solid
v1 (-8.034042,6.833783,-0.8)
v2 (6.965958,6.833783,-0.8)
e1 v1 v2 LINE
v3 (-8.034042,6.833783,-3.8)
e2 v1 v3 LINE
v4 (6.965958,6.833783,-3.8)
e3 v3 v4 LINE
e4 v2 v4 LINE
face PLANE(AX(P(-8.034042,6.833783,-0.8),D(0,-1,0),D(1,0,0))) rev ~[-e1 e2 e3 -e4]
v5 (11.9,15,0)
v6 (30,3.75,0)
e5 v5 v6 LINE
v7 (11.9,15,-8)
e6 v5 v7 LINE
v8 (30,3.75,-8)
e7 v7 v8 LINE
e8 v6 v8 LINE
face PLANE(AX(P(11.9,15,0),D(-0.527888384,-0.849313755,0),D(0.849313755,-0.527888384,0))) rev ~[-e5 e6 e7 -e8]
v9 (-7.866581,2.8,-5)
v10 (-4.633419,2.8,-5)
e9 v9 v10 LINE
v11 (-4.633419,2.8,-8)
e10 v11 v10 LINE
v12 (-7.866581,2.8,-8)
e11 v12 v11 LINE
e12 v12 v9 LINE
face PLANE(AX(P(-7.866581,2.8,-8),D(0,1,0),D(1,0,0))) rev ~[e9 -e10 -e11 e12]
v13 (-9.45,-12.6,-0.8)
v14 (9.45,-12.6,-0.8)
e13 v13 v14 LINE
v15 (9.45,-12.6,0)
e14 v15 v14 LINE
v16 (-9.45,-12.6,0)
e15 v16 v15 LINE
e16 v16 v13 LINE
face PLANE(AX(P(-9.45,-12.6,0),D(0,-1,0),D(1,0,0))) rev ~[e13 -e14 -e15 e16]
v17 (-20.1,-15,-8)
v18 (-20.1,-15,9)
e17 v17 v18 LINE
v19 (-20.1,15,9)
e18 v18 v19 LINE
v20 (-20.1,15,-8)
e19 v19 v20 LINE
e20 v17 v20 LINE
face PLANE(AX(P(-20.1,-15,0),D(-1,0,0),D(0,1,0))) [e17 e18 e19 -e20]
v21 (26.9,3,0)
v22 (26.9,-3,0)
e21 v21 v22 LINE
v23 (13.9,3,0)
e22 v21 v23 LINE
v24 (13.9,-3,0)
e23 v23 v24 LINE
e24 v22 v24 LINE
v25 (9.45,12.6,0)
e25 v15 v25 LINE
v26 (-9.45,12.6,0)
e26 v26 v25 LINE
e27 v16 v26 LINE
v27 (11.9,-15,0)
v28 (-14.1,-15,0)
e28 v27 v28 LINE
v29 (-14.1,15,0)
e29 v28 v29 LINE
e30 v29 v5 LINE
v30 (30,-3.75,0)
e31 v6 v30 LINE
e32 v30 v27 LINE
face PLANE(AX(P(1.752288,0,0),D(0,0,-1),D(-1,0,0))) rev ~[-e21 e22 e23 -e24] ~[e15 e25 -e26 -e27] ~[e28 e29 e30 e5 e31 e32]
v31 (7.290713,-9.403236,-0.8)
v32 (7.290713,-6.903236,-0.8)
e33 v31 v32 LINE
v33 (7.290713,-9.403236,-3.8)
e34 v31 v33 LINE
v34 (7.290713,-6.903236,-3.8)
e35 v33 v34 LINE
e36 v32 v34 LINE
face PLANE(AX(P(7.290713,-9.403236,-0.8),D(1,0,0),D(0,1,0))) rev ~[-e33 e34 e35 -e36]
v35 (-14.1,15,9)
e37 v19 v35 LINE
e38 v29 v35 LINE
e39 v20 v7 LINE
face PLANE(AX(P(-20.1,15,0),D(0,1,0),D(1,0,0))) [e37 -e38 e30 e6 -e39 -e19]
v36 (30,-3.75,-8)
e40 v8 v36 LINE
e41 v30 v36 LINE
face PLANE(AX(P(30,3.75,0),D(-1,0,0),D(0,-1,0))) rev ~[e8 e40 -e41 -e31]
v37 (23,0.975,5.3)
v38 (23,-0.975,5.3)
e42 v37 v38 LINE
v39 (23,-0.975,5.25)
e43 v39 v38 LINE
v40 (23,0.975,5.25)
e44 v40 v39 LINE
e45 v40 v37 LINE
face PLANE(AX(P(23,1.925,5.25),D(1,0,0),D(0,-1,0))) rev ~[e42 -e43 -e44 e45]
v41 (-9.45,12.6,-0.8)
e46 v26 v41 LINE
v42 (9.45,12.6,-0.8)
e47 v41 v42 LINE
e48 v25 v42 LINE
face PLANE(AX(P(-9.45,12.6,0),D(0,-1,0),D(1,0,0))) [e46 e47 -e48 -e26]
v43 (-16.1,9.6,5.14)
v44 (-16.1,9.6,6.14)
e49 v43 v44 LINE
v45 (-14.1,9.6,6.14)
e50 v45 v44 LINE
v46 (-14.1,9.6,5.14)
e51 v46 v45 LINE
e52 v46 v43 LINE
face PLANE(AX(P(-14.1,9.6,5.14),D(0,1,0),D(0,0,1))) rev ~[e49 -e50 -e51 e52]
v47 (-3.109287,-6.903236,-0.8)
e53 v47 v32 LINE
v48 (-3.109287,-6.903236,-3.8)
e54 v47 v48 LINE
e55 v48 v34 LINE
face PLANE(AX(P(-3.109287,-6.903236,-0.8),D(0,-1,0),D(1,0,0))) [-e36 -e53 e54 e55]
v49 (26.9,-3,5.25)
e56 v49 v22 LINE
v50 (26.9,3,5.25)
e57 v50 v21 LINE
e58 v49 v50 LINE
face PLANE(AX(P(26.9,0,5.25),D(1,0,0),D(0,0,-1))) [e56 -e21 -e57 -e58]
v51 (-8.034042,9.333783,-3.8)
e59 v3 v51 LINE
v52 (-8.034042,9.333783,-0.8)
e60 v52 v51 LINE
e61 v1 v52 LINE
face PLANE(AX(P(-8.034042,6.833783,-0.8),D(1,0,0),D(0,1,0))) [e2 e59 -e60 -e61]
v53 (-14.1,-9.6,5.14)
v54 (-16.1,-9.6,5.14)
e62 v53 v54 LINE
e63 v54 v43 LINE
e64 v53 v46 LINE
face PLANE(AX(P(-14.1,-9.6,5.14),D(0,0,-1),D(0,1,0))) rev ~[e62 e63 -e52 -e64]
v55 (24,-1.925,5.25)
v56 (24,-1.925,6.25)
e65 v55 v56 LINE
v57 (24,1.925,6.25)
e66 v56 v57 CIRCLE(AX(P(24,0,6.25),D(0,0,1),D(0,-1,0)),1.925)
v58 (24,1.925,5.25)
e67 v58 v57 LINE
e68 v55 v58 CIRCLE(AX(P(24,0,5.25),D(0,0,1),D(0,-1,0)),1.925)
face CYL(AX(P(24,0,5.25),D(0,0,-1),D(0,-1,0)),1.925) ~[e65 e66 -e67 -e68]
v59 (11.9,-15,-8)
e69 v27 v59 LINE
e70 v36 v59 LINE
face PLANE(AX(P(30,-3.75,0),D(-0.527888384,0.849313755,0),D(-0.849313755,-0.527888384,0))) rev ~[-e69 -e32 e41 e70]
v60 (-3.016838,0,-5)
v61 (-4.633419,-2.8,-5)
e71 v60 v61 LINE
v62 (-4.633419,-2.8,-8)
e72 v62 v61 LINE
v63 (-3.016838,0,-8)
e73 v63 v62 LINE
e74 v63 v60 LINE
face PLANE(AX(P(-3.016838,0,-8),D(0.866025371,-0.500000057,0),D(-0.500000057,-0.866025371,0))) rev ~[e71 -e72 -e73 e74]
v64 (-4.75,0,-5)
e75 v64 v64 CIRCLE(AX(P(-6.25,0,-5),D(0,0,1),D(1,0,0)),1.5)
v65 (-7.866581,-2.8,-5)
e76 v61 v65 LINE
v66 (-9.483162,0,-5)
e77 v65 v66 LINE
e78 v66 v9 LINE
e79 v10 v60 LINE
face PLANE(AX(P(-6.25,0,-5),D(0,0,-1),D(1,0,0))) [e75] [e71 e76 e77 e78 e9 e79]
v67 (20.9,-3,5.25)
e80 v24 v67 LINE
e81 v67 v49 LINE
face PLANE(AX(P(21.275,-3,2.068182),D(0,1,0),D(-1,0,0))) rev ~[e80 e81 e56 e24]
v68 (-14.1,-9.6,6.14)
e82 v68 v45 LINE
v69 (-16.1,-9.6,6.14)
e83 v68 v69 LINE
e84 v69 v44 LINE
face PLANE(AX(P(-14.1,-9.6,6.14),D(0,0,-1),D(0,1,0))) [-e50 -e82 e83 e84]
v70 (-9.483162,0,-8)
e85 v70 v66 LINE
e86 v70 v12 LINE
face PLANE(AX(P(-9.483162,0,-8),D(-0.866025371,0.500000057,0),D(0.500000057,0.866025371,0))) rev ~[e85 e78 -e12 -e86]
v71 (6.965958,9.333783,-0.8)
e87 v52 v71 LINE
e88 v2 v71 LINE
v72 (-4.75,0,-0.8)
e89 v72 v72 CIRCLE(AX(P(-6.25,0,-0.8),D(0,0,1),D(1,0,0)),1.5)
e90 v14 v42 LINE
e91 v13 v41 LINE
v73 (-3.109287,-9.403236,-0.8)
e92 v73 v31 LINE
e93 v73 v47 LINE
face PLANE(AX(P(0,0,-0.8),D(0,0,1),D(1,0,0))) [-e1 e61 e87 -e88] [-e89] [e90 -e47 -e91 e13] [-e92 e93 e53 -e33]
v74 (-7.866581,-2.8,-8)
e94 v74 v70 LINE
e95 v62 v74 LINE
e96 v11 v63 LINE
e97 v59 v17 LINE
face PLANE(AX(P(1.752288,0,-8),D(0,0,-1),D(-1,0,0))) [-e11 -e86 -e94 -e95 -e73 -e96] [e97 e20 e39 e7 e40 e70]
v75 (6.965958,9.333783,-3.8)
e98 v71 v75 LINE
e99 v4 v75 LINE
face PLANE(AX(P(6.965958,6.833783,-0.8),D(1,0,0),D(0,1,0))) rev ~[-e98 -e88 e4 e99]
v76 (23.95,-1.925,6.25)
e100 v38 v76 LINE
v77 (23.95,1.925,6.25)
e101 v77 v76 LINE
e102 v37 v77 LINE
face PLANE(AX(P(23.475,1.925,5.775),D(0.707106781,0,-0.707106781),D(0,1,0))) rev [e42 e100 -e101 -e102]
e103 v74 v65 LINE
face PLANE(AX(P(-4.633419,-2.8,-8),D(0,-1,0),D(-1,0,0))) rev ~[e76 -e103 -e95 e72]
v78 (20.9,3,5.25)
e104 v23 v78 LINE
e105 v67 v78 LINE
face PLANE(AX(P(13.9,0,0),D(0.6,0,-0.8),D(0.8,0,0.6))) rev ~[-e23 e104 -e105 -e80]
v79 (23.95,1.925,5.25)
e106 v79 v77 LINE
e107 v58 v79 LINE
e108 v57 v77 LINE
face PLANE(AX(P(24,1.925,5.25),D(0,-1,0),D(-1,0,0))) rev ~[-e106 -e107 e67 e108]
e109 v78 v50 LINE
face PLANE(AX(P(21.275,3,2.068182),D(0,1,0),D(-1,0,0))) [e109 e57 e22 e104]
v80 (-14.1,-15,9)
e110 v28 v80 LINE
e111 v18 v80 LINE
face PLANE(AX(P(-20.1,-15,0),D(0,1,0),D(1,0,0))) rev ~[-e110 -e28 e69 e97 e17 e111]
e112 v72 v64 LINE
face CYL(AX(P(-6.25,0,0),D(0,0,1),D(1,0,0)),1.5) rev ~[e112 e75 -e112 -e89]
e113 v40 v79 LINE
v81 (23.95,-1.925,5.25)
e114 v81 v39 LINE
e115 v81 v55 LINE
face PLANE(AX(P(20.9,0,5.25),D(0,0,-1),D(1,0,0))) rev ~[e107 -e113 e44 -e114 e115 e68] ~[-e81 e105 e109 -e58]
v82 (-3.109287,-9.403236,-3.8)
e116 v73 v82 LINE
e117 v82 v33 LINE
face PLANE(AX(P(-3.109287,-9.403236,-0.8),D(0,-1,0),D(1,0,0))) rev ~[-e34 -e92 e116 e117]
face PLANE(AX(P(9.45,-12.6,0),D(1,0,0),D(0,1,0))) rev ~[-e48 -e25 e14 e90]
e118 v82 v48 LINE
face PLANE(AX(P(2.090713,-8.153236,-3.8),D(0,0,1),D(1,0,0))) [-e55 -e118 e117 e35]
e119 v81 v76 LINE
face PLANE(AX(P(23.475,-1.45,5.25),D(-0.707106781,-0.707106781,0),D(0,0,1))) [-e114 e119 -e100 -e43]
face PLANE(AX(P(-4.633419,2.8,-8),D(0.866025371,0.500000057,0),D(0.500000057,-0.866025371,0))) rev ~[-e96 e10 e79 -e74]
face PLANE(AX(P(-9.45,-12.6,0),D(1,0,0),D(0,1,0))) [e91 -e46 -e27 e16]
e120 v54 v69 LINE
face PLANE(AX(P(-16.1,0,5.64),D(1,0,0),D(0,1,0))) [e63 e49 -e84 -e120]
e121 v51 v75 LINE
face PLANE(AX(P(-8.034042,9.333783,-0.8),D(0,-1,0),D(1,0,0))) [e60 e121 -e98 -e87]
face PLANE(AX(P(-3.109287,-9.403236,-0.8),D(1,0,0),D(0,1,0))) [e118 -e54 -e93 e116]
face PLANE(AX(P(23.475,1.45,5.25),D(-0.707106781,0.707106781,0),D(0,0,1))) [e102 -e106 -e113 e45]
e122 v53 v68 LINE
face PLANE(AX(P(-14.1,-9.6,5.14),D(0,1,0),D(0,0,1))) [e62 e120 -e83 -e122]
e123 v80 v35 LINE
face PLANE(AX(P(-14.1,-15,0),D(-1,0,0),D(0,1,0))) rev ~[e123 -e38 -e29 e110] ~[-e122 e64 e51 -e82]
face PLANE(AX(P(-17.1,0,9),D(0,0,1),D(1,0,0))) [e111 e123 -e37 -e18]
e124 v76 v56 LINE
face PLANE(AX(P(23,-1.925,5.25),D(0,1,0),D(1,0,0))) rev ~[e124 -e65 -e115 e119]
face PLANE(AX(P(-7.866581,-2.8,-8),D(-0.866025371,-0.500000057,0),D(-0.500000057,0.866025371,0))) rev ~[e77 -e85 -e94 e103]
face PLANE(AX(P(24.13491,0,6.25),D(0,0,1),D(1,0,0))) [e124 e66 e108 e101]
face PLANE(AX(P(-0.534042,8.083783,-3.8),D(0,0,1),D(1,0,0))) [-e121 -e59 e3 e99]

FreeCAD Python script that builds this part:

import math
import FreeCAD as App
import Part
import Sketcher

V = App.Vector
Q = App.Units.Quantity


def edges_at(feature, points):
    """Names of the edges that pass closest to the given points."""
    edges = feature.Shape.Edges
    near = lambda p: min(range(len(edges)), key=lambda i: edges[i].distToShape(Part.Vertex(*p))[0])
    return sorted({f"Edge{near(p) + 1}" for p in points})


def add_polygon(sketch, points):
    """Adds a closed chain of lines whose ends are joined by coincident constraints."""
    first, n = sketch.GeometryCount, len(points)
    for a, b in zip(points, points[1:] + points[:1]):
        sketch.addGeometry(Part.LineSegment(App.Vector(*a, 0), App.Vector(*b, 0)), False)
    for i in range(n):
        sketch.addConstraint(Sketcher.Constraint("Coincident", first + i, 2, first + (i + 1) % n, 1))

doc = App.newDocument("Part")
body = doc.addObject("PartDesign::Body", "Body")

# Sketch on XY plane
sketch1 = body.newObject("Sketcher::SketchObject", "Sketch")
sketch1.AttachmentSupport = (doc.getObject("XY_Plane"), [""])
sketch1.MapMode = "FlatFace"
add_polygon(sketch1, [(11.9, 15), (-20.1, 15), (-20.1, -15), (11.9, -15), (30, -3.8), (30, 3.8)])  # lines 0-5
sketch1.addGeometry(Part.Circle(V(-6.2, 0, 0), V(0, 0, 1), 1.5), False)  # 6
sketch1.addConstraint([
    Sketcher.Constraint("Horizontal", 0),
    Sketcher.Constraint("Vertical", 1),
    Sketcher.Constraint("Horizontal", 2),
    Sketcher.Constraint("Vertical", 4),
    Sketcher.Constraint("Symmetric", 2, 2, 5, 2, -1),
    Sketcher.Constraint("PointOnObject", 6, 3, -1),
    Sketcher.Constraint("Equal", 3, 5),
    Sketcher.Constraint("Diameter", 6, 3.0),
    Sketcher.Constraint("DistanceX", 0, 2, 0, 1, 32.0),
    Sketcher.Constraint("DistanceY", 1, 2, 1, 1, 30.0),
    Sketcher.Constraint("DistanceY", 4, 1, 4, 2, 7.5),
    Sketcher.Constraint("DistanceX", -1, 1, 3, 2, 30.0),
    Sketcher.Constraint("DistanceX", 0, 2, -1, 1, 20.1),
    Sketcher.Constraint("DistanceX", 6, 3, -1, 1, 6.25),
])
pad1 = body.newObject("PartDesign::Pad", "Pad")
pad1.Profile = sketch1
pad1.Length = 8
pad1.Reversed = True

# Sketch on XY plane
sketch2 = body.newObject("Sketcher::SketchObject", "Sketch001")
sketch2.AttachmentSupport = (doc.getObject("XY_Plane"), [""])
sketch2.MapMode = "FlatFace"
add_polygon(sketch2, [(-9, 13), (-9, -13), (9, -13), (9, 13)])  # lines 0-3
sketch2.addConstraint([
    Sketcher.Constraint("Vertical", 0),
    Sketcher.Constraint("Horizontal", 1),
    Sketcher.Constraint("Vertical", 2),
    Sketcher.Constraint("Horizontal", 3),
    Sketcher.Constraint("Symmetric", 0, 2, 2, 2, -1, 1),
    Sketcher.Constraint("DistanceX", 1, 1, 1, 2, 18.9),
    Sketcher.Constraint("DistanceY", 0, 2, 0, 1, 25.2),
])
pocket1 = body.newObject("PartDesign::Pocket", "Pocket")
pocket1.Profile = sketch2
pocket1.Length = 0.8

# Sketch on XY plane
sketch3 = body.newObject("Sketcher::SketchObject", "Sketch002")
sketch3.AttachmentSupport = (doc.getObject("XY_Plane"), [""])
sketch3.MapMode = "FlatFace"
sketch3.AttachmentOffset = App.Placement(V(0, 0, -0.8), App.Rotation())
add_polygon(sketch3, [(-8, 9.3), (-8, 6.8), (7, 6.8), (7, 9.3)])  # lines 0-3
add_polygon(sketch3, [(-3.1, -6.9), (-3.1, -9.4), (7.3, -9.4), (7.3, -6.9)])  # lines 4-7
sketch3.addConstraint([
    Sketcher.Constraint("Vertical", 0),
    Sketcher.Constraint("Horizontal", 1),
    Sketcher.Constraint("Vertical", 2),
    Sketcher.Constraint("Horizontal", 3),
    Sketcher.Constraint("Vertical", 4),
    Sketcher.Constraint("Horizontal", 5),
    Sketcher.Constraint("Vertical", 6),
    Sketcher.Constraint("Horizontal", 7),
    Sketcher.Constraint("Equal", 2, 4),
    Sketcher.Constraint("DistanceX", 1, 1, 1, 2, 15.0),
    Sketcher.Constraint("DistanceX", 5, 1, 5, 2, 10.4),
    Sketcher.Constraint("DistanceY", 0, 2, 0, 1, 2.5),
    Sketcher.Constraint("DistanceY", 4, 2, 0, 2, 16.237019),
    Sketcher.Constraint("DistanceX", 0, 2, -1, 1, 8.034042),
    Sketcher.Constraint("DistanceY", -1, 1, 0, 2, 6.833783),
    Sketcher.Constraint("DistanceX", 4, 2, -1, 1, 3.109287),
])
pocket2 = body.newObject("PartDesign::Pocket", "Pocket001")
pocket2.Profile = sketch3
pocket2.Length = 3

# Sketch on XY plane
sketch4 = body.newObject("Sketcher::SketchObject", "Sketch003")
sketch4.AttachmentSupport = (doc.getObject("XY_Plane"), [""])
sketch4.MapMode = "FlatFace"
add_polygon(sketch4, [(-20, 15), (-20, -15), (-14, -15), (-14, 15)])  # lines 0-3
sketch4.addConstraint([
    Sketcher.Constraint("Vertical", 0),
    Sketcher.Constraint("Horizontal", 1),
    Sketcher.Constraint("Vertical", 2),
    Sketcher.Constraint("Horizontal", 3),
    Sketcher.Constraint("DistanceX", 1, 1, 1, 2, 6.0),
    Sketcher.Constraint("DistanceY", 0, 2, 0, 1, 30.0),
    Sketcher.Constraint("DistanceY", 0, 2, -1, 1, 15.0),
    Sketcher.Constraint("DistanceX", 0, 2, -1, 1, 20.1),
])
pad2 = body.newObject("PartDesign::Pad", "Pad001")
pad2.Profile = sketch4
pad2.Length = 9

# Sketch on YZ plane
sketch5 = body.newObject("Sketcher::SketchObject", "Sketch004")
sketch5.AttachmentSupport = (doc.getObject("YZ_Plane"), [""])
sketch5.MapMode = "FlatFace"
sketch5.AttachmentOffset = App.Placement(V(0, 0, -14.1), App.Rotation())
add_polygon(sketch5, [(-9.6, 6.1), (-9.6, 5.1), (9.6, 5.1), (9.6, 6.1)])  # lines 0-3
sketch5.addConstraint([
    Sketcher.Constraint("Vertical", 0),
    Sketcher.Constraint("Horizontal", 1),
    Sketcher.Constraint("Vertical", 2),
    Sketcher.Constraint("Horizontal", 3),
    Sketcher.Constraint("DistanceY", 0, 2, 0, 1, 1.0),
    Sketcher.Constraint("DistanceX", 1, 1, 1, 2, 19.2),
    Sketcher.Constraint("DistanceX", 0, 2, -1, 1, 9.6),
    Sketcher.Constraint("DistanceY", -1, 1, 0, 2, 5.14),
])
pocket3 = body.newObject("PartDesign::Pocket", "Pocket002")
pocket3.Profile = sketch5
pocket3.Length = 2

# Sketch on XY plane
sketch6 = body.newObject("Sketcher::SketchObject", "Sketch005")
sketch6.AttachmentSupport = (doc.getObject("XY_Plane"), [""])
sketch6.MapMode = "FlatFace"
sketch6.AttachmentOffset = App.Placement(V(0, 0, -8), App.Rotation())
add_polygon(sketch6, [(-4.6, -2.8), (-7.9, -2.8), (-9.5, 0), (-7.9, 2.8), (-4.6, 2.8), (-3, 0)])  # lines 0-5
sketch6.addConstraint([
    Sketcher.Constraint("Horizontal", 0),
    Sketcher.Constraint("Horizontal", 3),
    Sketcher.Constraint("Symmetric", 0, 2, 2, 2, -1),
    Sketcher.Constraint("PointOnObject", 1, 2, -1),
    Sketcher.Constraint("PointOnObject", 4, 2, -1),
    Sketcher.Constraint("Parallel", 1, 4),
    Sketcher.Constraint("Parallel", 2, 5),
    Sketcher.Constraint("Angle", 1, Q("120.000004 deg")),
    Sketcher.Constraint("DistanceY", 0, 2, -1, 1, 2.8),
    Sketcher.Constraint("DistanceX", 0, 2, 0, 1, 3.233162),
    Sketcher.Constraint("DistanceX", 0, 2, -1, 1, 7.866581),
])
pocket4 = body.newObject("PartDesign::Pocket", "Pocket003")
pocket4.Profile = sketch6
pocket4.Length = 3
pocket4.Reversed = True

# Sketch on XZ plane
sketch7 = body.newObject("Sketcher::SketchObject", "Sketch006")
sketch7.AttachmentSupport = (doc.getObject("XZ_Plane"), [""])
sketch7.MapMode = "FlatFace"
add_polygon(sketch7, [(21, 5), (14, 0), (27, 0), (27, 5)])  # lines 0-3
sketch7.addConstraint([
    Sketcher.Constraint("Horizontal", 1),
    Sketcher.Constraint("Vertical", 2),
    Sketcher.Constraint("Horizontal", 3),
    Sketcher.Constraint("PointOnObject", 0, 2, -1),
    Sketcher.Constraint("DistanceX", 1, 1, 1, 2, 13.0),
    Sketcher.Constraint("DistanceX", 3, 2, 3, 1, 6.0),
    Sketcher.Constraint("DistanceY", 2, 1, 2, 2, 5.25),
    Sketcher.Constraint("DistanceX", -1, 1, 0, 2, 13.9),
])
pad3 = body.newObject("PartDesign::Pad", "Pad002")
pad3.Profile = sketch7
pad3.Type = "TwoLengths"
pad3.Length = 3
pad3.Length2 = 3

# Sketch on XY plane
sketch8 = body.newObject("Sketcher::SketchObject", "Sketch007")
sketch8.AttachmentSupport = (doc.getObject("XY_Plane"), [""])
sketch8.MapMode = "FlatFace"
sketch8.AttachmentOffset = App.Placement(V(0, 0, 5.25), App.Rotation())
sketch8.addGeometry([
    Part.ArcOfCircle(Part.Circle(V(24, 0, 0), V(0, 0, 1), 1.9), math.radians(-90), math.radians(90)),
    Part.LineSegment(V(24, 1.9, 0), V(23, 1.9, 0)),
    Part.LineSegment(V(23, 1.9, 0), V(23, -1.9, 0)),
    Part.LineSegment(V(23, -1.9, 0), V(24, -1.9, 0)),
], False)
sketch8.addConstraint([
    Sketcher.Constraint("Tangent", 0, 2, 1, 1),
    Sketcher.Constraint("Coincident", 1, 2, 2, 1),
    Sketcher.Constraint("Coincident", 2, 2, 3, 1),
    Sketcher.Constraint("Tangent", 3, 2, 0, 1),
    Sketcher.Constraint("Horizontal", 1),
    Sketcher.Constraint("Vertical", 2),
    Sketcher.Constraint("Horizontal", 3),
    Sketcher.Constraint("PointOnObject", 0, 3, -1),
    Sketcher.Constraint("DistanceX", 1, 2, 1, 1, 1.0),
    Sketcher.Constraint("DistanceX", -1, 1, 0, 3, 24.0),
    Sketcher.Constraint("Radius", 0, 1.925),
])
pad4 = body.newObject("PartDesign::Pad", "Pad003")
pad4.Profile = sketch8
pad4.Length = 1
doc.recompute()

chamfer = body.newObject("PartDesign::Chamfer", "Chamfer")
chamfer.Base = (pad4, edges_at(pad4, [(23, 0, 6.25), (23, -1.925, 5.75), (23, 1.925, 5.75)]))
chamfer.Size = 0.95

doc.recompute()
